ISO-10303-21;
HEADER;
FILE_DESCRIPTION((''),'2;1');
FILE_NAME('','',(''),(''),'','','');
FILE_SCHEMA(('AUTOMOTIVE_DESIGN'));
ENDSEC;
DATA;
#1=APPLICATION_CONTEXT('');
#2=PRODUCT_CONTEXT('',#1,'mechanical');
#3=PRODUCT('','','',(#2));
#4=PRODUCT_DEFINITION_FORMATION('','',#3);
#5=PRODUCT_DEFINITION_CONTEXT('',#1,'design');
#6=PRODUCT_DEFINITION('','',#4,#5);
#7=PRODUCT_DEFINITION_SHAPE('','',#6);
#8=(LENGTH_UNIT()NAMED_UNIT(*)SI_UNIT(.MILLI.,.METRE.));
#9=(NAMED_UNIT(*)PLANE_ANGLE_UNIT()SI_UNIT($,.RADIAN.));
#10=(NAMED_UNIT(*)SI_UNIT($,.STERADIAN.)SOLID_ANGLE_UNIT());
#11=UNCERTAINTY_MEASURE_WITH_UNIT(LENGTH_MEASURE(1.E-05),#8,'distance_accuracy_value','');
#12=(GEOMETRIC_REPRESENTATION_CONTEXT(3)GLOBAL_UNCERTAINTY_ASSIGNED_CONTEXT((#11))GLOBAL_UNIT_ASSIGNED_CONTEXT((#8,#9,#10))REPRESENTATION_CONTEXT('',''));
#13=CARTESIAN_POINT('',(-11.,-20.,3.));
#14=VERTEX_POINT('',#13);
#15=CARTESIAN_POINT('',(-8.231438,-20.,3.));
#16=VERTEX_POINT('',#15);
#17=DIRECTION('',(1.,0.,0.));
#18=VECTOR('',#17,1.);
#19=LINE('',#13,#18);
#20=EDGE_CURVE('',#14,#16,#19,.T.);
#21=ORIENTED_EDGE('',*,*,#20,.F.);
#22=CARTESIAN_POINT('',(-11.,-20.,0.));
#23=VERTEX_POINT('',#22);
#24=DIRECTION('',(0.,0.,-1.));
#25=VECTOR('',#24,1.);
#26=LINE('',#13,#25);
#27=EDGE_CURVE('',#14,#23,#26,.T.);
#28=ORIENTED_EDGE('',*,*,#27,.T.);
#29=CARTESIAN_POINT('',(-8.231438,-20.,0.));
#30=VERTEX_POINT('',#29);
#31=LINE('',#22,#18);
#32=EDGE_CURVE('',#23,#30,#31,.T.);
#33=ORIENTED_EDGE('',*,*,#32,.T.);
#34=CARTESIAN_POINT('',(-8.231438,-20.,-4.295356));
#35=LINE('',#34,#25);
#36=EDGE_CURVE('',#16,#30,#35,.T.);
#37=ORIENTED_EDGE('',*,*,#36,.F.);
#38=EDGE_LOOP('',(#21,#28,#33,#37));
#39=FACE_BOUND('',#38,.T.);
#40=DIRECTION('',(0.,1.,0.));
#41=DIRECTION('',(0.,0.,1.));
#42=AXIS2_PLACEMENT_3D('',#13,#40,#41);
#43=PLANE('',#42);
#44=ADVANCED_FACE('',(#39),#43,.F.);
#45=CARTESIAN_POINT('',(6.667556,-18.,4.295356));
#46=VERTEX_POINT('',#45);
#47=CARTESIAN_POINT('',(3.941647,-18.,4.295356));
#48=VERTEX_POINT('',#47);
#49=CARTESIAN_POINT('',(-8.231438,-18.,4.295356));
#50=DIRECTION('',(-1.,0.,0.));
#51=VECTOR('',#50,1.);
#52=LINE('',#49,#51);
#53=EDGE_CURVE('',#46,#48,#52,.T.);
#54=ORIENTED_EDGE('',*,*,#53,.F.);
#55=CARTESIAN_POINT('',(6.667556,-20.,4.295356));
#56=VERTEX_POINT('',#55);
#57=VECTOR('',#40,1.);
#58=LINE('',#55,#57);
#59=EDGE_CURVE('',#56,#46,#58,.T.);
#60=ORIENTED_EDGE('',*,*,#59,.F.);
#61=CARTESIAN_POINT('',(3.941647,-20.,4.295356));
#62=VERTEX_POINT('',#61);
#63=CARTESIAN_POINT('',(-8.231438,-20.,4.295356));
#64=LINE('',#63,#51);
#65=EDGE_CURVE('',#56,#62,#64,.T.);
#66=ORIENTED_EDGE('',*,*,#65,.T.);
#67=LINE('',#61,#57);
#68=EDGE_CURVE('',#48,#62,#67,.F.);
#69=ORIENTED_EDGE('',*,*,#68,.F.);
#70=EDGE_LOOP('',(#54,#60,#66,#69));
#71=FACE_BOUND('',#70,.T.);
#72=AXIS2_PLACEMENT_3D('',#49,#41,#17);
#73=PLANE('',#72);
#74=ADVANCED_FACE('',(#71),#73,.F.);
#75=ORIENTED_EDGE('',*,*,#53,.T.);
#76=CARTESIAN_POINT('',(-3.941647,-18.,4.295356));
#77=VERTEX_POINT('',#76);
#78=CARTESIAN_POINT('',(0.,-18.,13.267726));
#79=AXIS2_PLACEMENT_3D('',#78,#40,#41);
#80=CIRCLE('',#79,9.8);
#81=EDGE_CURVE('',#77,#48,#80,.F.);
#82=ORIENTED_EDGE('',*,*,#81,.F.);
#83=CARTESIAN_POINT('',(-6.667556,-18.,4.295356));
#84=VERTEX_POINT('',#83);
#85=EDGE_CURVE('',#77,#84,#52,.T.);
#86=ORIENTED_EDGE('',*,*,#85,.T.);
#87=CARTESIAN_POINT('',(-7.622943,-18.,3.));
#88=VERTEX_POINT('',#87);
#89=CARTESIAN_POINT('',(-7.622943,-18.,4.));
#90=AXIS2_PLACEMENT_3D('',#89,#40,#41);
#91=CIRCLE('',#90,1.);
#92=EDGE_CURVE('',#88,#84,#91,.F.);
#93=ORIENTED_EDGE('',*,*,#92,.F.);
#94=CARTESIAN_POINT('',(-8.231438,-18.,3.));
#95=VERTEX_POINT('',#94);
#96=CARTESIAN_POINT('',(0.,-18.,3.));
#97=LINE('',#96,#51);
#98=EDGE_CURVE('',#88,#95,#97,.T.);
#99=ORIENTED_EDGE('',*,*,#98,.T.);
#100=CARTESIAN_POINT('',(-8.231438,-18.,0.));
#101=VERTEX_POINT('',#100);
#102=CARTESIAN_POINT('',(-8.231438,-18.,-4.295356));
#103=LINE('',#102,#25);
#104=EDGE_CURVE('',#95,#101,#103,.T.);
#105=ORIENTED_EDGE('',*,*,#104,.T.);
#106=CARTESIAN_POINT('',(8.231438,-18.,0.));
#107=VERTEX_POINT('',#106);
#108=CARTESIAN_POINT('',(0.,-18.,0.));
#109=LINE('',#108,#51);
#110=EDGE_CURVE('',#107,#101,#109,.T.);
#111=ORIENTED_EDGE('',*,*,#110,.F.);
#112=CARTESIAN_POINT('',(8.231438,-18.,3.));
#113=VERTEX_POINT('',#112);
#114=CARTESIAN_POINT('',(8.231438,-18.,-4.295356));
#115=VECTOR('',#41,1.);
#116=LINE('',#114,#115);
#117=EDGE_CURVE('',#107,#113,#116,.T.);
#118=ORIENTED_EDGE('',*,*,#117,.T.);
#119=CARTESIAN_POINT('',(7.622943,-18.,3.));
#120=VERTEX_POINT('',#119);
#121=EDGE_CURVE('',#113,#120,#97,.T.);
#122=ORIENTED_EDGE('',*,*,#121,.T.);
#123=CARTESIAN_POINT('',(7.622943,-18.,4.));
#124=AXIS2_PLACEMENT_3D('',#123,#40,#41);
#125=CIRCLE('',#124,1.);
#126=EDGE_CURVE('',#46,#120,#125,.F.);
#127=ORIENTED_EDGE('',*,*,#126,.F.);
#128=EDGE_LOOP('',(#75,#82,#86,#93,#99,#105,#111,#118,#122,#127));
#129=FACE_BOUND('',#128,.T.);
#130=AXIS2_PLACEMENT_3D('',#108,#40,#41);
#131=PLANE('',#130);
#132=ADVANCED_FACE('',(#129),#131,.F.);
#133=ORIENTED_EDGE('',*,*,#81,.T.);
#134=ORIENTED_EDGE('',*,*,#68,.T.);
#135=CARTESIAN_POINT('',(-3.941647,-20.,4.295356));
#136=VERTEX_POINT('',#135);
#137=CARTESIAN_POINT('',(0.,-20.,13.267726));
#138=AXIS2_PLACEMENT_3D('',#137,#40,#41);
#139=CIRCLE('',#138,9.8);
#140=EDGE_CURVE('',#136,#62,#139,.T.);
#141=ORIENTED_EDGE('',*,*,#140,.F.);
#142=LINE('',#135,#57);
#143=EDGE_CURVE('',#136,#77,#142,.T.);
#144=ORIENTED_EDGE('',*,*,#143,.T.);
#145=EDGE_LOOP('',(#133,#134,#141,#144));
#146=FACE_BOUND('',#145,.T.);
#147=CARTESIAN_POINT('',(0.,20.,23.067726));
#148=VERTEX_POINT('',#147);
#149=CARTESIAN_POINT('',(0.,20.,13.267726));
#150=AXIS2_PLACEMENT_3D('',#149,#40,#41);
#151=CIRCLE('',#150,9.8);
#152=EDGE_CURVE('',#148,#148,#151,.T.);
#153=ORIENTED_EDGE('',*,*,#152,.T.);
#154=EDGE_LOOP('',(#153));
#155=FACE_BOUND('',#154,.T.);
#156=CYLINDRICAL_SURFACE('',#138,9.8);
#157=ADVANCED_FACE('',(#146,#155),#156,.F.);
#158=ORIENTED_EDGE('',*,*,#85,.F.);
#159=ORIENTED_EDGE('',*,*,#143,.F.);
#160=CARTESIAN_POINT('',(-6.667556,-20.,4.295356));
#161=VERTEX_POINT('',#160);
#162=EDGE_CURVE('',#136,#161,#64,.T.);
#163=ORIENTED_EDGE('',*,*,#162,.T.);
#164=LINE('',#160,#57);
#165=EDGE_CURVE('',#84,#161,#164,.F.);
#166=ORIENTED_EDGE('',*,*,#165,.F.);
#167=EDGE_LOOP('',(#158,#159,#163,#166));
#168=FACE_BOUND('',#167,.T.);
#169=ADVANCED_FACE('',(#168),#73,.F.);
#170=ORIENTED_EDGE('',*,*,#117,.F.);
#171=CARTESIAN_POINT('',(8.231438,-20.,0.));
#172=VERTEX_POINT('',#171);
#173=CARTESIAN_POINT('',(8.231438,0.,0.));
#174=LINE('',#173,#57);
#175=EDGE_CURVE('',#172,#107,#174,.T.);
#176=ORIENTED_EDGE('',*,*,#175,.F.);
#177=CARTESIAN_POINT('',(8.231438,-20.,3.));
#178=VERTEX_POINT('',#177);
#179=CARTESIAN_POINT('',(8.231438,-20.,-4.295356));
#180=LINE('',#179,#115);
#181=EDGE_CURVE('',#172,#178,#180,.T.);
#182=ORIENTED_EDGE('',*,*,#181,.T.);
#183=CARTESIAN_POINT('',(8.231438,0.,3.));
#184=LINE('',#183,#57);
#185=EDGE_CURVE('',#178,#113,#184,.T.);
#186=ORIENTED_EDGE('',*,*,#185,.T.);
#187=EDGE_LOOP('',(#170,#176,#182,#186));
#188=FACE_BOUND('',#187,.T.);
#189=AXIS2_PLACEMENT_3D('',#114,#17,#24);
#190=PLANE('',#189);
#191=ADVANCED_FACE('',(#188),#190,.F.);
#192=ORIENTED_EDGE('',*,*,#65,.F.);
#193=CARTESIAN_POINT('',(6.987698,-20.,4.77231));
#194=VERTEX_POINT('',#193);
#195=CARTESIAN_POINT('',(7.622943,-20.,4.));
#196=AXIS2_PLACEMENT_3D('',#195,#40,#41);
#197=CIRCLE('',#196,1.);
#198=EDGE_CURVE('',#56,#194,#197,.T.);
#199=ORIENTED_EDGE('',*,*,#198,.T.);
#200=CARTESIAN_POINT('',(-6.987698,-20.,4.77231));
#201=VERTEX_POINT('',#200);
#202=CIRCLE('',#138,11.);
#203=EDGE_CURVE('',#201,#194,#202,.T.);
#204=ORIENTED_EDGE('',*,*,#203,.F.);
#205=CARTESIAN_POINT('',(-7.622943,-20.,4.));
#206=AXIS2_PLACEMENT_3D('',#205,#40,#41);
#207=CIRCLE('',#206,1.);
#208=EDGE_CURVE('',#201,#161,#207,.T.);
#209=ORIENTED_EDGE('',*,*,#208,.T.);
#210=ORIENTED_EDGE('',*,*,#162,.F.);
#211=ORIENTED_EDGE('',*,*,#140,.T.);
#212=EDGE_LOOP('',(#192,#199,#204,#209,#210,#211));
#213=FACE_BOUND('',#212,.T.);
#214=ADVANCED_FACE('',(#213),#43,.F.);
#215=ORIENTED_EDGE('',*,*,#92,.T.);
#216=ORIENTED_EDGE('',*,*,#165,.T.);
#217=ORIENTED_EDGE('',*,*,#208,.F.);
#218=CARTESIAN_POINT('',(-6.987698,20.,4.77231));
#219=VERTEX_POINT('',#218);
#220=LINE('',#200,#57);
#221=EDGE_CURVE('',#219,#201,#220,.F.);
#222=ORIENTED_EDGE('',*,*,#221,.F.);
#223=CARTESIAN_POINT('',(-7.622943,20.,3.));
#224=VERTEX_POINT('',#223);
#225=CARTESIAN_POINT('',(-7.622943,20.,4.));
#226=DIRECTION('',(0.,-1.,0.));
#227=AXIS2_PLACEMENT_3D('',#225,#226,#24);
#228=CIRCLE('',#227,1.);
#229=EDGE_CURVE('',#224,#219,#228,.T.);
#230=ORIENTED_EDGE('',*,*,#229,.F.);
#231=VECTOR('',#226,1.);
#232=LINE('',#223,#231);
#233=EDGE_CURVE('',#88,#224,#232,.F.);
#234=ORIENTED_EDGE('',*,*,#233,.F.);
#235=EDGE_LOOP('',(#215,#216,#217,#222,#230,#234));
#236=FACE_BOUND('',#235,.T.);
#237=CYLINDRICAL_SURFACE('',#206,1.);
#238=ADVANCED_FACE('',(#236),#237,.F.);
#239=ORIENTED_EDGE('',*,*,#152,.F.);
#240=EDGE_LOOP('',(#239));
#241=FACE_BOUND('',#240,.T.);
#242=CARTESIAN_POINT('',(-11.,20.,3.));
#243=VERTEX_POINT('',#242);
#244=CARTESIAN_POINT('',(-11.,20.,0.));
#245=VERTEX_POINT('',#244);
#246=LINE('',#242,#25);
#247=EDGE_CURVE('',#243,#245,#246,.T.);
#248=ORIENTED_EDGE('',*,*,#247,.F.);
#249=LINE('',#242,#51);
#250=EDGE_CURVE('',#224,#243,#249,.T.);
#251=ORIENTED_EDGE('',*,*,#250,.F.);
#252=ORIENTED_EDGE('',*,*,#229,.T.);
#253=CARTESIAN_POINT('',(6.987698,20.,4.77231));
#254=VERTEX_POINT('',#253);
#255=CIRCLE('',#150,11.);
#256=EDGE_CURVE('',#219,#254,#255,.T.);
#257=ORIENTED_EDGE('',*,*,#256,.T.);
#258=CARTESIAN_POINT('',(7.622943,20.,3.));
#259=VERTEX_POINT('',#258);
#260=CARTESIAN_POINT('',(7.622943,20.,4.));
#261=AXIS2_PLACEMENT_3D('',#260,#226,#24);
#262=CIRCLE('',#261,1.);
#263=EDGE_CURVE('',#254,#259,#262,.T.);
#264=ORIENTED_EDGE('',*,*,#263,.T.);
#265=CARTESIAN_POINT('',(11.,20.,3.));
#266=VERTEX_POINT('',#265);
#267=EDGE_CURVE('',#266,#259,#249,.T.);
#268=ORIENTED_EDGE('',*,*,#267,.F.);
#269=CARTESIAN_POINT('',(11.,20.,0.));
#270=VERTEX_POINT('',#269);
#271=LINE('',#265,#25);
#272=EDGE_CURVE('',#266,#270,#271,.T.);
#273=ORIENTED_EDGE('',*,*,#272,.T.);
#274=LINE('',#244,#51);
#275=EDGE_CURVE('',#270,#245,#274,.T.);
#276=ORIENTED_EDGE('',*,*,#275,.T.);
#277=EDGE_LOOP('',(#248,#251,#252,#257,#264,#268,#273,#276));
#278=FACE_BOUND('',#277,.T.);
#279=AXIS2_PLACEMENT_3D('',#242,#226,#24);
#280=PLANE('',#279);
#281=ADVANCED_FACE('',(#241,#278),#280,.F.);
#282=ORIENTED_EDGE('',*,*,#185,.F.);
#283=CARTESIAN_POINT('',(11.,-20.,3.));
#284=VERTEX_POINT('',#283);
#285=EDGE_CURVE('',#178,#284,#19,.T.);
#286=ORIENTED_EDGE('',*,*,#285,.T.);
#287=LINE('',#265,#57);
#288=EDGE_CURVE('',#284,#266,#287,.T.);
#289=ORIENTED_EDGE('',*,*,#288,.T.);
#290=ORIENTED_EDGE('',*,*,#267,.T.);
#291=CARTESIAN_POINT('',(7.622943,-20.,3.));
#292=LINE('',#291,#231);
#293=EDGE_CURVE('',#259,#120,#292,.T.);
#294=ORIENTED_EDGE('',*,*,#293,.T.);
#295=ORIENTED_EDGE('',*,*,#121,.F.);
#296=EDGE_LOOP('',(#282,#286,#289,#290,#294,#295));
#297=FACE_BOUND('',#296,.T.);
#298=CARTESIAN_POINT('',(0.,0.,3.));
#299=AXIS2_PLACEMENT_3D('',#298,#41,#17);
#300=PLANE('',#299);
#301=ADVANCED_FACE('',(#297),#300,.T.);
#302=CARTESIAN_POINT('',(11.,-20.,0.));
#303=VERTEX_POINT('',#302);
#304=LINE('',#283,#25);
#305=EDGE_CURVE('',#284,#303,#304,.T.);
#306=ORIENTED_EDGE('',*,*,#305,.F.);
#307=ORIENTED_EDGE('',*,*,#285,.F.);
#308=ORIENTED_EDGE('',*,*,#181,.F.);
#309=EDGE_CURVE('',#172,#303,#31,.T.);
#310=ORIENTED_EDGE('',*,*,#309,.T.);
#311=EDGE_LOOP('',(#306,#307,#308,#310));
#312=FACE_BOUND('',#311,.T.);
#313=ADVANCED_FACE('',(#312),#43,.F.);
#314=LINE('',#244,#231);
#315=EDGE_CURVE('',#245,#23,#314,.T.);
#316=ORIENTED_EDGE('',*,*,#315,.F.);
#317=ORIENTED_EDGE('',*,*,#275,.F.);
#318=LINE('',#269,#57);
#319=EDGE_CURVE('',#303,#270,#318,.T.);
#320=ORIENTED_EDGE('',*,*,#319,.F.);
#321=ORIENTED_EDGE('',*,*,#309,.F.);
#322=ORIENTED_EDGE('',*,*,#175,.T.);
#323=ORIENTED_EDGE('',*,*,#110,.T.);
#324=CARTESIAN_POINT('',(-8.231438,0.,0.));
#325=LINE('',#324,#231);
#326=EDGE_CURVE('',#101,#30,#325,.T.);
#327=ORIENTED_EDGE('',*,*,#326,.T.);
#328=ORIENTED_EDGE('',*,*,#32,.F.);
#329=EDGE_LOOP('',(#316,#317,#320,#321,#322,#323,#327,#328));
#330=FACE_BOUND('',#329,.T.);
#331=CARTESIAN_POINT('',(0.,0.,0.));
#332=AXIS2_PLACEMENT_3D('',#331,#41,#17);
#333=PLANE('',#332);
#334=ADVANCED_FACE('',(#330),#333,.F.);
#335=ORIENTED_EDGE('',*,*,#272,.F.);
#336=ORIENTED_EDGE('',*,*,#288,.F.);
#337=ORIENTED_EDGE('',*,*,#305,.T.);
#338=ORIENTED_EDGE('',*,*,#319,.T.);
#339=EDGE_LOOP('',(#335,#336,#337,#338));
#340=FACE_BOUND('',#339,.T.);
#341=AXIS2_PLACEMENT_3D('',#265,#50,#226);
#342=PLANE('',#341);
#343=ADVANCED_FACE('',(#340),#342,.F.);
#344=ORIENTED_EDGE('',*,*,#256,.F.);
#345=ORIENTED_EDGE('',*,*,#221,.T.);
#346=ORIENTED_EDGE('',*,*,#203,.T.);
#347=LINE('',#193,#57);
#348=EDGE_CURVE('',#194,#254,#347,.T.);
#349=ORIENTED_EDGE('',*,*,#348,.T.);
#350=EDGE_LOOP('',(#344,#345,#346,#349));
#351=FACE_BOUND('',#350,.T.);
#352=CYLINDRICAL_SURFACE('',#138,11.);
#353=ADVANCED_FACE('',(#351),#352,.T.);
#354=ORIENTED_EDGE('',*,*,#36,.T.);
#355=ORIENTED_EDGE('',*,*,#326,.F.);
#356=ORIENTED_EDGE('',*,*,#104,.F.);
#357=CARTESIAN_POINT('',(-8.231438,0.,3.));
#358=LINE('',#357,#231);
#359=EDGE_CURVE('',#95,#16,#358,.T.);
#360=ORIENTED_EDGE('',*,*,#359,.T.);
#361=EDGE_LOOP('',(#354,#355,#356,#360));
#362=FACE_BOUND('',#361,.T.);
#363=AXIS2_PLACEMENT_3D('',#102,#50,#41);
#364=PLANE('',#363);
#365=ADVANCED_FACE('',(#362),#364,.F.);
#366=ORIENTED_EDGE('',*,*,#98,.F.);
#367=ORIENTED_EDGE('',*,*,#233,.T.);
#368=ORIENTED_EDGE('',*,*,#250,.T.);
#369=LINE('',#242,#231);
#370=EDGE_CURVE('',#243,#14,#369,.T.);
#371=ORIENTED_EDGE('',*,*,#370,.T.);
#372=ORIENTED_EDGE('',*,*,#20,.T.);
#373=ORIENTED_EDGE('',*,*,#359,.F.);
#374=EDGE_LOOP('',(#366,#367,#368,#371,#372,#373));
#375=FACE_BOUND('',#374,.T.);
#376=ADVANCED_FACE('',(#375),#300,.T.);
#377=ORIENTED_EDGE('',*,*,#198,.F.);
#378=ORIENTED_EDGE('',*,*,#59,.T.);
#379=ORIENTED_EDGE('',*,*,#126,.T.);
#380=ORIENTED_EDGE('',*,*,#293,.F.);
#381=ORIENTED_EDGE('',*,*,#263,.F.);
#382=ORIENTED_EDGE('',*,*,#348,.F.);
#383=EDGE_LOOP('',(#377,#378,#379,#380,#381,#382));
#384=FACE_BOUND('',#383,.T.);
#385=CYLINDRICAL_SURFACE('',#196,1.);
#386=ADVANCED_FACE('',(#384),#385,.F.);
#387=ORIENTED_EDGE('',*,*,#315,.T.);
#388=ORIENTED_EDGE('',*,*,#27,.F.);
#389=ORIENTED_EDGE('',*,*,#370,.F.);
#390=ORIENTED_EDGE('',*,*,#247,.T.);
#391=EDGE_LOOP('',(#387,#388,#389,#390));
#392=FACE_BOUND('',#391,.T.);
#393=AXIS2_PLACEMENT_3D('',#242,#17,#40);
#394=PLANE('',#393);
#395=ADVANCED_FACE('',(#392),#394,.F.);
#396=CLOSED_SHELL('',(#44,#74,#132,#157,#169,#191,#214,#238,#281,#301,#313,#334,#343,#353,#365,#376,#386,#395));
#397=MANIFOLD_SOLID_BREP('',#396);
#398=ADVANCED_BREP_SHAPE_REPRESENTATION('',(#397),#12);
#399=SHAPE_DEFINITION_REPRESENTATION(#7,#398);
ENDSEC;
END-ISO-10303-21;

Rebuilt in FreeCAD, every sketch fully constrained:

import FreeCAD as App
import Part
import Sketcher

V = App.Vector


def edges_at(feature, points):
    """Names of the edges that pass closest to the given points."""
    edges = feature.Shape.Edges
    near = lambda p: min(range(len(edges)), key=lambda i: edges[i].distToShape(Part.Vertex(*p))[0])
    return sorted({f"Edge{near(p) + 1}" for p in points})

doc = App.newDocument("Part")
body = doc.addObject("PartDesign::Body", "Body")

# Sketch on XY plane
sketch1 = body.newObject("Sketcher::SketchObject", "Sketch")
sketch1.AttachmentSupport = (doc.getObject("XY_Plane"), [""])
sketch1.MapMode = "FlatFace"
sketch1.addGeometry(Part.LineSegment(V(-11, 20, 0), V(-11, -20, 0)), False)
sketch1.addGeometry(Part.LineSegment(V(-11, -20, 0), V(11, -20, 0)), False)
sketch1.addGeometry(Part.LineSegment(V(11, -20, 0), V(11, 20, 0)), False)
sketch1.addGeometry(Part.LineSegment(V(11, 20, 0), V(-11, 20, 0)), False)
sketch1.addConstraint(Sketcher.Constraint("Coincident", 0, 2, 1, 1))
sketch1.addConstraint(Sketcher.Constraint("Coincident", 1, 2, 2, 1))
sketch1.addConstraint(Sketcher.Constraint("Coincident", 2, 2, 3, 1))
sketch1.addConstraint(Sketcher.Constraint("Coincident", 3, 2, 0, 1))
sketch1.addConstraint(Sketcher.Constraint("Vertical", 0))
sketch1.addConstraint(Sketcher.Constraint("Horizontal", 1))
sketch1.addConstraint(Sketcher.Constraint("Vertical", 2))
sketch1.addConstraint(Sketcher.Constraint("Horizontal", 3))
sketch1.addConstraint(Sketcher.Constraint("Symmetric", 0, 2, 2, 2, -1, 1))
sketch1.addConstraint(Sketcher.Constraint("DistanceX", 1, 1, 1, 2, 22.0))
sketch1.addConstraint(Sketcher.Constraint("DistanceY", 0, 2, 0, 1, 40.0))
pad1 = body.newObject("PartDesign::Pad", "Pad")
pad1.Profile = sketch1
pad1.Length = 3

# Sketch on XZ plane
sketch2 = body.newObject("Sketcher::SketchObject", "Sketch001")
sketch2.AttachmentSupport = (doc.getObject("XZ_Plane"), [""])
sketch2.MapMode = "FlatFace"
sketch2.AttachmentOffset = App.Placement(V(0, 0, -20), App.Rotation())
sketch2.addGeometry(Part.Circle(V(0, 13.267726, 0), V(0, 0, 1), 11), False)
sketch2.addGeometry(Part.Circle(V(0, 13.267726, 0), V(0, 0, 1), 9.8), False)
sketch2.addConstraint(Sketcher.Constraint("Coincident", 1, 3, 0, 3))
sketch2.addConstraint(Sketcher.Constraint("PointOnObject", 0, 3, -2))
sketch2.addConstraint(Sketcher.Constraint("Diameter", 0, 22.0))
sketch2.addConstraint(Sketcher.Constraint("Diameter", 1, 19.6))
sketch2.addConstraint(Sketcher.Constraint("DistanceY", -1, 1, 0, 3, 13.267726))
pad2 = body.newObject("PartDesign::Pad", "Pad001")
pad2.Profile = sketch2
pad2.Length = 40
doc.recompute()

fillet = body.newObject("PartDesign::Fillet", "Fillet")
fillet.Base = (pad2, edges_at(pad2, [(-3.946, 0, 3), (3.946, 0, 3)]))
fillet.Radius = 1

# Sketch on XZ plane
sketch3 = body.newObject("Sketcher::SketchObject", "Sketch002")
sketch3.AttachmentSupport = (doc.getObject("XZ_Plane"), [""])
sketch3.MapMode = "FlatFace"
sketch3.AttachmentOffset = App.Placement(V(0, 0, 20), App.Rotation())
sketch3.addGeometry(Part.LineSegment(V(-8.231438, 4.295356, 0), V(-8.231438, -4.295356, 0)), False)
sketch3.addGeometry(Part.LineSegment(V(-8.231438, -4.295356, 0), V(8.231438, -4.295356, 0)), False)
sketch3.addGeometry(Part.LineSegment(V(8.231438, -4.295356, 0), V(8.231438, 4.295356, 0)), False)
sketch3.addGeometry(Part.LineSegment(V(8.231438, 4.295356, 0), V(-8.231438, 4.295356, 0)), False)
sketch3.addConstraint(Sketcher.Constraint("Coincident", 0, 2, 1, 1))
sketch3.addConstraint(Sketcher.Constraint("Coincident", 1, 2, 2, 1))
sketch3.addConstraint(Sketcher.Constraint("Coincident", 2, 2, 3, 1))
sketch3.addConstraint(Sketcher.Constraint("Coincident", 3, 2, 0, 1))
sketch3.addConstraint(Sketcher.Constraint("Vertical", 0))
sketch3.addConstraint(Sketcher.Constraint("Horizontal", 1))
sketch3.addConstraint(Sketcher.Constraint("Vertical", 2))
sketch3.addConstraint(Sketcher.Constraint("Horizontal", 3))
sketch3.addConstraint(Sketcher.Constraint("Symmetric", 0, 2, 2, 2, -1, 1))
sketch3.addConstraint(Sketcher.Constraint("DistanceX", 1, 1, 1, 2, 16.462876))
sketch3.addConstraint(Sketcher.Constraint("DistanceY", 0, 2, 0, 1, 8.590712))
pocket1 = body.newObject("PartDesign::Pocket", "Pocket")
pocket1.Profile = sketch3
pocket1.Length = 2

doc.recompute()
